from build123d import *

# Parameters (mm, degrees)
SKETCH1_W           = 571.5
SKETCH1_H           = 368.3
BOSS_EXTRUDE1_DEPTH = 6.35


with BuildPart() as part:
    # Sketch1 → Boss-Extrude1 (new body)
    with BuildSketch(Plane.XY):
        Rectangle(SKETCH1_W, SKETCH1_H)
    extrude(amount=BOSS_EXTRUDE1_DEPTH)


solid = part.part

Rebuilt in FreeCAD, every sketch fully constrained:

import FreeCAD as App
import Part
import Sketcher

V = App.Vector
Q = App.Units.Quantity

doc = App.newDocument("Part")
body = doc.addObject("PartDesign::Body", "Body")

sketch1 = body.newObject("Sketcher::SketchObject", "Sketch")
sketch1.AttachmentSupport = (doc.getObject("XY_Plane"), [""])
sketch1.MapMode = "FlatFace"
sketch1.addGeometry(Part.LineSegment(V(-286, 184, 0), V(-286, -184, 0)), False)
sketch1.addGeometry(Part.LineSegment(V(-286, -184, 0), V(286, -184, 0)), False)
sketch1.addGeometry(Part.LineSegment(V(286, -184, 0), V(286, 184, 0)), False)
sketch1.addGeometry(Part.LineSegment(V(286, 184, 0), V(-286, 184, 0)), False)
sketch1.addConstraint(Sketcher.Constraint("Coincident", 0, 2, 1, 1))
sketch1.addConstraint(Sketcher.Constraint("Coincident", 1, 2, 2, 1))
sketch1.addConstraint(Sketcher.Constraint("Coincident", 2, 2, 3, 1))
sketch1.addConstraint(Sketcher.Constraint("Coincident", 3, 2, 0, 1))
sketch1.addConstraint(Sketcher.Constraint("Vertical", 0))
sketch1.addConstraint(Sketcher.Constraint("Horizontal", 1))
sketch1.addConstraint(Sketcher.Constraint("Vertical", 2))
sketch1.addConstraint(Sketcher.Constraint("Horizontal", 3))
sketch1.addConstraint(Sketcher.Constraint("Symmetric", 0, 2, 2, 2, -1, 1))
sketch1.addConstraint(Sketcher.Constraint("DistanceX", 1, 1, 1, 2, Q("22.5 in")))
sketch1.addConstraint(Sketcher.Constraint("DistanceY", 0, 2, 0, 1, Q("14.5 in")))
pad1 = body.newObject("PartDesign::Pad", "Pad")
pad1.Profile = sketch1
pad1.Length = Q("0.25 in")

doc.recompute()
